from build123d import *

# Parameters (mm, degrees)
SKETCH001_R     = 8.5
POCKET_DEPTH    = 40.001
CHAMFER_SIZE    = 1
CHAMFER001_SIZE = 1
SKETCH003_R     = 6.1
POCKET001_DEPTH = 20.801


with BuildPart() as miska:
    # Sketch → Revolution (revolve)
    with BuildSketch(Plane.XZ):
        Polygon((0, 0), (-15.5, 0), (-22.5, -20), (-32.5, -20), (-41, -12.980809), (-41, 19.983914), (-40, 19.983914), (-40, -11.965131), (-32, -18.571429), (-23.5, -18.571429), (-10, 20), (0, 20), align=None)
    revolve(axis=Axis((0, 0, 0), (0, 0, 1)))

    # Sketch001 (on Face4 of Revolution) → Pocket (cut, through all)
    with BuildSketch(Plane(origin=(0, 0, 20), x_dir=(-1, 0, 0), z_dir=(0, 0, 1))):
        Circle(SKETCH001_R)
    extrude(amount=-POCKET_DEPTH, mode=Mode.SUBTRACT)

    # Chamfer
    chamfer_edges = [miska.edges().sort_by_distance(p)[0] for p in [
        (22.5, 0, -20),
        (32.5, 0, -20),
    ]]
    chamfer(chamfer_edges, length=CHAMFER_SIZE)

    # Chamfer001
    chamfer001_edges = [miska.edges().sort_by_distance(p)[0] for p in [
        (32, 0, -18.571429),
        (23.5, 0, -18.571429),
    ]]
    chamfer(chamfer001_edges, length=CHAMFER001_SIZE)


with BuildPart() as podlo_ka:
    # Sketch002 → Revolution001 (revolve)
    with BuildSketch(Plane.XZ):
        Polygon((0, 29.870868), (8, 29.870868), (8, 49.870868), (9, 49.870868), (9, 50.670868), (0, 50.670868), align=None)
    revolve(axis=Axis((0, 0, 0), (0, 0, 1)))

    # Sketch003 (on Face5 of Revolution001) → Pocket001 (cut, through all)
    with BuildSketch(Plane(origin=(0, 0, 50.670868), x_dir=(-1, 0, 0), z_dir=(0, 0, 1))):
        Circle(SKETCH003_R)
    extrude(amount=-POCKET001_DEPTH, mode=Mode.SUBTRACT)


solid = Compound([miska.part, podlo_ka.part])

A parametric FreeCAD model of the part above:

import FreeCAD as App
import Part
import Sketcher

V = App.Vector


def edges_at(feature, points):
    """Names of the edges that pass closest to the given points."""
    edges = feature.Shape.Edges
    near = lambda p: min(range(len(edges)), key=lambda i: edges[i].distToShape(Part.Vertex(*p))[0])
    return sorted({f"Edge{near(p) + 1}" for p in points})

doc = App.newDocument("Part")
params = doc.addObject("Spreadsheet::Sheet", "Params")
for row, (alias, value) in enumerate([
    ("sketch1_width", "10 mm"),
    ("sketch1_width2", "1 mm"),
    ("sketch1_height", "20 mm"),
    ("sketch1_width3", "15.5 mm"),
    ("sketch1_width4", "8.5 mm"),
    ("revolution_angle", "360 deg"),
    ("sketch2_diameter", "17 mm"),
    ("chamfer_size", "1 mm"),
    ("chamfer2_size", "1 mm"),
    ("sketch3_width", "8 mm"),
    ("sketch3_width2", "1 mm"),
    ("sketch3_height", "20 mm"),
    ("sketch3_height2", "0.8 mm"),
    ("revolution2_angle", "360 deg"),
    ("sketch4_diameter", "12.2 mm"),
], start=1):
    params.set(f"A{row}", alias)
    params.set(f"B{row}", "=" + value)
    params.setAlias(f"B{row}", alias)

body = doc.addObject("PartDesign::Body", "Body")

# Sketch on XZ plane
sketch1 = doc.addObject("Sketcher::SketchObject", "Sketch")
body.addObject(sketch1)
sketch1.AttachmentSupport = (doc.XZ_Plane, [""])
sketch1.MapMode = "FlatFace"
sketch1.addGeometry([
    Part.LineSegment(V(-15.5, 0, 0), V(0, 0, 0)),  # 0
    Part.LineSegment(V(0, 0, 0), V(0, 20, 0)),  # 1
    Part.LineSegment(V(0, 20, 0), V(-10, 20, 0)),  # 2
    Part.LineSegment(V(-10, 20, 0), V(-23.5, -18.6, 0)),  # 3
    Part.LineSegment(V(-23.5, -18.6, 0), V(-32, -18.6, 0)),  # 4
    Part.LineSegment(V(-32, -18.6, 0), V(-40, -12, 0)),  # 5
    Part.LineSegment(V(-40, -12, 0), V(-40, 20, 0)),  # 6
    Part.LineSegment(V(-40, 20, 0), V(-41, 20, 0)),  # 7
    Part.LineSegment(V(-41, 20, 0), V(-41, -13, 0)),  # 8
    Part.LineSegment(V(-41, -13, 0), V(-32.5, -20, 0)),  # 9
    Part.LineSegment(V(-32.5, -20, 0), V(-22.5, -20, 0)),  # 10
    Part.LineSegment(V(-22.5, -20, 0), V(-15.5, 0, 0)),  # 11
], False)
sketch1.addConstraint([
    Sketcher.Constraint("Coincident", 0, 2, 1, 1),
    Sketcher.Constraint("Coincident", 1, 2, 2, 1),
    Sketcher.Constraint("Coincident", 2, 2, 3, 1),
    Sketcher.Constraint("Coincident", 3, 2, 4, 1),
    Sketcher.Constraint("Coincident", 4, 2, 5, 1),
    Sketcher.Constraint("Coincident", 5, 2, 6, 1),
    Sketcher.Constraint("Coincident", 6, 2, 7, 1),
    Sketcher.Constraint("Coincident", 7, 2, 8, 1),
    Sketcher.Constraint("Coincident", 8, 2, 9, 1),
    Sketcher.Constraint("Coincident", 9, 2, 10, 1),
    Sketcher.Constraint("Coincident", 10, 2, 11, 1),
    Sketcher.Constraint("Coincident", 11, 2, 0, 1),
    Sketcher.Constraint("Horizontal", 0),
    Sketcher.Constraint("Vertical", 1),
    Sketcher.Constraint("Horizontal", 2),
    Sketcher.Constraint("Horizontal", 4),
    Sketcher.Constraint("Vertical", 6),
    Sketcher.Constraint("Horizontal", 7),
    Sketcher.Constraint("Vertical", 8),
    Sketcher.Constraint("Horizontal", 10),
    Sketcher.Constraint("Coincident", 0, 2, -1, 1),
    Sketcher.Constraint("Parallel", 5, 9),
    Sketcher.Constraint("Parallel", 3, 11),
    Sketcher.Constraint("Equal", 2, 10),
    Sketcher.Constraint("DistanceX", 2, 2, 2, 1, 10.0),
    Sketcher.Constraint("DistanceX", 7, 2, 7, 1, 1.0),
    Sketcher.Constraint("DistanceY", 1, 1, 1, 2, 20.0),
    Sketcher.Constraint("DistanceX", 0, 1, 0, 2, 15.5),
    Sketcher.Constraint("DistanceX", 4, 2, 4, 1, 8.5),
    Sketcher.Constraint("DistanceX", 4, 2, -1, 1, 32.0),
    Sketcher.Constraint("DistanceX", 5, 2, -1, 1, 40.0),
    Sketcher.Constraint("DistanceY", 9, 2, -1, 1, 20.0),
    Sketcher.Constraint("DistanceX", 9, 2, 3, 2, 9.0),
    Sketcher.Constraint("DistanceY", 6, 1, 6, 2, 31.949045),
    Sketcher.Constraint("DistanceY", 8, 2, 8, 1, 32.964723),
])
sketch1.setExpression("Constraints[24]", "Params.sketch1_width")
sketch1.setExpression("Constraints[25]", "Params.sketch1_width2")
sketch1.setExpression("Constraints[26]", "Params.sketch1_height")
sketch1.setExpression("Constraints[27]", "Params.sketch1_width3")
sketch1.setExpression("Constraints[28]", "Params.sketch1_width4")
revolution = doc.addObject("PartDesign::Revolution", "Revolution")
body.addObject(revolution)
revolution.Profile = sketch1
revolution.ReferenceAxis = (sketch1, ["V_Axis"])
revolution.setExpression("Angle", "Params.revolution_angle")

# Sketch on XY plane
sketch2 = doc.addObject("Sketcher::SketchObject", "Sketch001")
body.addObject(sketch2)
sketch2.AttachmentSupport = (doc.XY_Plane, [""])
sketch2.MapMode = "FlatFace"
sketch2.AttachmentOffset = App.Placement(V(0, 0, 20), App.Rotation())
sketch2.addGeometry(Part.Circle(V(0, 0, 0), V(0, 0, 1), 8), False)
sketch2.addConstraint([
    Sketcher.Constraint("Coincident", 0, 3, -1, 1),
    Sketcher.Constraint("Diameter", 0, 17.0),
])
sketch2.setExpression("Constraints[1]", "Params.sketch2_diameter")
pocket1 = doc.addObject("PartDesign::Pocket", "Pocket")
body.addObject(pocket1)
pocket1.Profile = sketch2
pocket1.Type = "ThroughAll"
doc.recompute()

chamfer = doc.addObject("PartDesign::Chamfer", "Chamfer")
body.addObject(chamfer)
chamfer.Base = (pocket1, edges_at(pocket1, [(22.5, 0, -20), (32.5, 0, -20)]))
chamfer.setExpression("Size", "Params.chamfer_size")
doc.recompute()

chamfer2 = doc.addObject("PartDesign::Chamfer", "Chamfer001")
body.addObject(chamfer2)
chamfer2.Base = (chamfer, edges_at(chamfer, [(32, 0, -18.571), (23.5, 0, -18.571)]))
chamfer2.setExpression("Size", "Params.chamfer2_size")
body2 = doc.addObject("PartDesign::Body", "Body001")

# Sketch on XZ plane
sketch3 = doc.addObject("Sketcher::SketchObject", "Sketch002")
body2.addObject(sketch3)
sketch3.AttachmentSupport = (doc.getObject("XZ_Plane001"), [""])
sketch3.MapMode = "FlatFace"
sketch3.addGeometry([
    Part.LineSegment(V(0, 29.9, 0), V(8, 29.9, 0)),  # 0
    Part.LineSegment(V(8, 29.9, 0), V(8, 49.9, 0)),  # 1
    Part.LineSegment(V(8, 49.9, 0), V(9, 49.9, 0)),  # 2
    Part.LineSegment(V(9, 49.9, 0), V(9, 50.7, 0)),  # 3
    Part.LineSegment(V(9, 50.7, 0), V(0, 50.7, 0)),  # 4
    Part.LineSegment(V(0, 50.7, 0), V(0, 29.9, 0)),  # 5
], False)
sketch3.addConstraint([
    Sketcher.Constraint("Coincident", 0, 2, 1, 1),
    Sketcher.Constraint("Coincident", 1, 2, 2, 1),
    Sketcher.Constraint("Coincident", 2, 2, 3, 1),
    Sketcher.Constraint("Coincident", 3, 2, 4, 1),
    Sketcher.Constraint("Coincident", 4, 2, 5, 1),
    Sketcher.Constraint("Coincident", 5, 2, 0, 1),
    Sketcher.Constraint("Horizontal", 0),
    Sketcher.Constraint("Vertical", 1),
    Sketcher.Constraint("Horizontal", 2),
    Sketcher.Constraint("Vertical", 3),
    Sketcher.Constraint("Horizontal", 4),
    Sketcher.Constraint("Vertical", 5),
    Sketcher.Constraint("PointOnObject", 4, 2, -2),
    Sketcher.Constraint("DistanceX", 0, 1, 0, 2, 8.0),
    Sketcher.Constraint("DistanceX", 2, 1, 2, 2, 1.0),
    Sketcher.Constraint("DistanceY", 1, 1, 1, 2, 20.0),
    Sketcher.Constraint("DistanceY", 3, 1, 3, 2, 0.8),
    Sketcher.Constraint("DistanceY", -1, 1, 0, 2, 29.870868),
])
sketch3.setExpression("Constraints[13]", "Params.sketch3_width")
sketch3.setExpression("Constraints[14]", "Params.sketch3_width2")
sketch3.setExpression("Constraints[15]", "Params.sketch3_height")
sketch3.setExpression("Constraints[16]", "Params.sketch3_height2")
revolution2 = doc.addObject("PartDesign::Revolution", "Revolution001")
body2.addObject(revolution2)
revolution2.Profile = sketch3
revolution2.ReferenceAxis = (sketch3, ["V_Axis"])
revolution2.setExpression("Angle", "Params.revolution2_angle")

# Sketch on XY plane
sketch4 = doc.addObject("Sketcher::SketchObject", "Sketch003")
body2.addObject(sketch4)
sketch4.AttachmentSupport = (doc.getObject("XY_Plane001"), [""])
sketch4.MapMode = "FlatFace"
sketch4.AttachmentOffset = App.Placement(V(0, 0, 50.670868), App.Rotation())
sketch4.addGeometry(Part.Circle(V(0, 0, 0), V(0, 0, 1), 6), False)
sketch4.addConstraint([
    Sketcher.Constraint("Coincident", 0, 3, -1, 1),
    Sketcher.Constraint("Diameter", 0, 12.2),
])
sketch4.setExpression("Constraints[1]", "Params.sketch4_diameter")
pocket2 = doc.addObject("PartDesign::Pocket", "Pocket001")
body2.addObject(pocket2)
pocket2.Profile = sketch4
pocket2.Type = "ThroughAll"

doc.recompute()
